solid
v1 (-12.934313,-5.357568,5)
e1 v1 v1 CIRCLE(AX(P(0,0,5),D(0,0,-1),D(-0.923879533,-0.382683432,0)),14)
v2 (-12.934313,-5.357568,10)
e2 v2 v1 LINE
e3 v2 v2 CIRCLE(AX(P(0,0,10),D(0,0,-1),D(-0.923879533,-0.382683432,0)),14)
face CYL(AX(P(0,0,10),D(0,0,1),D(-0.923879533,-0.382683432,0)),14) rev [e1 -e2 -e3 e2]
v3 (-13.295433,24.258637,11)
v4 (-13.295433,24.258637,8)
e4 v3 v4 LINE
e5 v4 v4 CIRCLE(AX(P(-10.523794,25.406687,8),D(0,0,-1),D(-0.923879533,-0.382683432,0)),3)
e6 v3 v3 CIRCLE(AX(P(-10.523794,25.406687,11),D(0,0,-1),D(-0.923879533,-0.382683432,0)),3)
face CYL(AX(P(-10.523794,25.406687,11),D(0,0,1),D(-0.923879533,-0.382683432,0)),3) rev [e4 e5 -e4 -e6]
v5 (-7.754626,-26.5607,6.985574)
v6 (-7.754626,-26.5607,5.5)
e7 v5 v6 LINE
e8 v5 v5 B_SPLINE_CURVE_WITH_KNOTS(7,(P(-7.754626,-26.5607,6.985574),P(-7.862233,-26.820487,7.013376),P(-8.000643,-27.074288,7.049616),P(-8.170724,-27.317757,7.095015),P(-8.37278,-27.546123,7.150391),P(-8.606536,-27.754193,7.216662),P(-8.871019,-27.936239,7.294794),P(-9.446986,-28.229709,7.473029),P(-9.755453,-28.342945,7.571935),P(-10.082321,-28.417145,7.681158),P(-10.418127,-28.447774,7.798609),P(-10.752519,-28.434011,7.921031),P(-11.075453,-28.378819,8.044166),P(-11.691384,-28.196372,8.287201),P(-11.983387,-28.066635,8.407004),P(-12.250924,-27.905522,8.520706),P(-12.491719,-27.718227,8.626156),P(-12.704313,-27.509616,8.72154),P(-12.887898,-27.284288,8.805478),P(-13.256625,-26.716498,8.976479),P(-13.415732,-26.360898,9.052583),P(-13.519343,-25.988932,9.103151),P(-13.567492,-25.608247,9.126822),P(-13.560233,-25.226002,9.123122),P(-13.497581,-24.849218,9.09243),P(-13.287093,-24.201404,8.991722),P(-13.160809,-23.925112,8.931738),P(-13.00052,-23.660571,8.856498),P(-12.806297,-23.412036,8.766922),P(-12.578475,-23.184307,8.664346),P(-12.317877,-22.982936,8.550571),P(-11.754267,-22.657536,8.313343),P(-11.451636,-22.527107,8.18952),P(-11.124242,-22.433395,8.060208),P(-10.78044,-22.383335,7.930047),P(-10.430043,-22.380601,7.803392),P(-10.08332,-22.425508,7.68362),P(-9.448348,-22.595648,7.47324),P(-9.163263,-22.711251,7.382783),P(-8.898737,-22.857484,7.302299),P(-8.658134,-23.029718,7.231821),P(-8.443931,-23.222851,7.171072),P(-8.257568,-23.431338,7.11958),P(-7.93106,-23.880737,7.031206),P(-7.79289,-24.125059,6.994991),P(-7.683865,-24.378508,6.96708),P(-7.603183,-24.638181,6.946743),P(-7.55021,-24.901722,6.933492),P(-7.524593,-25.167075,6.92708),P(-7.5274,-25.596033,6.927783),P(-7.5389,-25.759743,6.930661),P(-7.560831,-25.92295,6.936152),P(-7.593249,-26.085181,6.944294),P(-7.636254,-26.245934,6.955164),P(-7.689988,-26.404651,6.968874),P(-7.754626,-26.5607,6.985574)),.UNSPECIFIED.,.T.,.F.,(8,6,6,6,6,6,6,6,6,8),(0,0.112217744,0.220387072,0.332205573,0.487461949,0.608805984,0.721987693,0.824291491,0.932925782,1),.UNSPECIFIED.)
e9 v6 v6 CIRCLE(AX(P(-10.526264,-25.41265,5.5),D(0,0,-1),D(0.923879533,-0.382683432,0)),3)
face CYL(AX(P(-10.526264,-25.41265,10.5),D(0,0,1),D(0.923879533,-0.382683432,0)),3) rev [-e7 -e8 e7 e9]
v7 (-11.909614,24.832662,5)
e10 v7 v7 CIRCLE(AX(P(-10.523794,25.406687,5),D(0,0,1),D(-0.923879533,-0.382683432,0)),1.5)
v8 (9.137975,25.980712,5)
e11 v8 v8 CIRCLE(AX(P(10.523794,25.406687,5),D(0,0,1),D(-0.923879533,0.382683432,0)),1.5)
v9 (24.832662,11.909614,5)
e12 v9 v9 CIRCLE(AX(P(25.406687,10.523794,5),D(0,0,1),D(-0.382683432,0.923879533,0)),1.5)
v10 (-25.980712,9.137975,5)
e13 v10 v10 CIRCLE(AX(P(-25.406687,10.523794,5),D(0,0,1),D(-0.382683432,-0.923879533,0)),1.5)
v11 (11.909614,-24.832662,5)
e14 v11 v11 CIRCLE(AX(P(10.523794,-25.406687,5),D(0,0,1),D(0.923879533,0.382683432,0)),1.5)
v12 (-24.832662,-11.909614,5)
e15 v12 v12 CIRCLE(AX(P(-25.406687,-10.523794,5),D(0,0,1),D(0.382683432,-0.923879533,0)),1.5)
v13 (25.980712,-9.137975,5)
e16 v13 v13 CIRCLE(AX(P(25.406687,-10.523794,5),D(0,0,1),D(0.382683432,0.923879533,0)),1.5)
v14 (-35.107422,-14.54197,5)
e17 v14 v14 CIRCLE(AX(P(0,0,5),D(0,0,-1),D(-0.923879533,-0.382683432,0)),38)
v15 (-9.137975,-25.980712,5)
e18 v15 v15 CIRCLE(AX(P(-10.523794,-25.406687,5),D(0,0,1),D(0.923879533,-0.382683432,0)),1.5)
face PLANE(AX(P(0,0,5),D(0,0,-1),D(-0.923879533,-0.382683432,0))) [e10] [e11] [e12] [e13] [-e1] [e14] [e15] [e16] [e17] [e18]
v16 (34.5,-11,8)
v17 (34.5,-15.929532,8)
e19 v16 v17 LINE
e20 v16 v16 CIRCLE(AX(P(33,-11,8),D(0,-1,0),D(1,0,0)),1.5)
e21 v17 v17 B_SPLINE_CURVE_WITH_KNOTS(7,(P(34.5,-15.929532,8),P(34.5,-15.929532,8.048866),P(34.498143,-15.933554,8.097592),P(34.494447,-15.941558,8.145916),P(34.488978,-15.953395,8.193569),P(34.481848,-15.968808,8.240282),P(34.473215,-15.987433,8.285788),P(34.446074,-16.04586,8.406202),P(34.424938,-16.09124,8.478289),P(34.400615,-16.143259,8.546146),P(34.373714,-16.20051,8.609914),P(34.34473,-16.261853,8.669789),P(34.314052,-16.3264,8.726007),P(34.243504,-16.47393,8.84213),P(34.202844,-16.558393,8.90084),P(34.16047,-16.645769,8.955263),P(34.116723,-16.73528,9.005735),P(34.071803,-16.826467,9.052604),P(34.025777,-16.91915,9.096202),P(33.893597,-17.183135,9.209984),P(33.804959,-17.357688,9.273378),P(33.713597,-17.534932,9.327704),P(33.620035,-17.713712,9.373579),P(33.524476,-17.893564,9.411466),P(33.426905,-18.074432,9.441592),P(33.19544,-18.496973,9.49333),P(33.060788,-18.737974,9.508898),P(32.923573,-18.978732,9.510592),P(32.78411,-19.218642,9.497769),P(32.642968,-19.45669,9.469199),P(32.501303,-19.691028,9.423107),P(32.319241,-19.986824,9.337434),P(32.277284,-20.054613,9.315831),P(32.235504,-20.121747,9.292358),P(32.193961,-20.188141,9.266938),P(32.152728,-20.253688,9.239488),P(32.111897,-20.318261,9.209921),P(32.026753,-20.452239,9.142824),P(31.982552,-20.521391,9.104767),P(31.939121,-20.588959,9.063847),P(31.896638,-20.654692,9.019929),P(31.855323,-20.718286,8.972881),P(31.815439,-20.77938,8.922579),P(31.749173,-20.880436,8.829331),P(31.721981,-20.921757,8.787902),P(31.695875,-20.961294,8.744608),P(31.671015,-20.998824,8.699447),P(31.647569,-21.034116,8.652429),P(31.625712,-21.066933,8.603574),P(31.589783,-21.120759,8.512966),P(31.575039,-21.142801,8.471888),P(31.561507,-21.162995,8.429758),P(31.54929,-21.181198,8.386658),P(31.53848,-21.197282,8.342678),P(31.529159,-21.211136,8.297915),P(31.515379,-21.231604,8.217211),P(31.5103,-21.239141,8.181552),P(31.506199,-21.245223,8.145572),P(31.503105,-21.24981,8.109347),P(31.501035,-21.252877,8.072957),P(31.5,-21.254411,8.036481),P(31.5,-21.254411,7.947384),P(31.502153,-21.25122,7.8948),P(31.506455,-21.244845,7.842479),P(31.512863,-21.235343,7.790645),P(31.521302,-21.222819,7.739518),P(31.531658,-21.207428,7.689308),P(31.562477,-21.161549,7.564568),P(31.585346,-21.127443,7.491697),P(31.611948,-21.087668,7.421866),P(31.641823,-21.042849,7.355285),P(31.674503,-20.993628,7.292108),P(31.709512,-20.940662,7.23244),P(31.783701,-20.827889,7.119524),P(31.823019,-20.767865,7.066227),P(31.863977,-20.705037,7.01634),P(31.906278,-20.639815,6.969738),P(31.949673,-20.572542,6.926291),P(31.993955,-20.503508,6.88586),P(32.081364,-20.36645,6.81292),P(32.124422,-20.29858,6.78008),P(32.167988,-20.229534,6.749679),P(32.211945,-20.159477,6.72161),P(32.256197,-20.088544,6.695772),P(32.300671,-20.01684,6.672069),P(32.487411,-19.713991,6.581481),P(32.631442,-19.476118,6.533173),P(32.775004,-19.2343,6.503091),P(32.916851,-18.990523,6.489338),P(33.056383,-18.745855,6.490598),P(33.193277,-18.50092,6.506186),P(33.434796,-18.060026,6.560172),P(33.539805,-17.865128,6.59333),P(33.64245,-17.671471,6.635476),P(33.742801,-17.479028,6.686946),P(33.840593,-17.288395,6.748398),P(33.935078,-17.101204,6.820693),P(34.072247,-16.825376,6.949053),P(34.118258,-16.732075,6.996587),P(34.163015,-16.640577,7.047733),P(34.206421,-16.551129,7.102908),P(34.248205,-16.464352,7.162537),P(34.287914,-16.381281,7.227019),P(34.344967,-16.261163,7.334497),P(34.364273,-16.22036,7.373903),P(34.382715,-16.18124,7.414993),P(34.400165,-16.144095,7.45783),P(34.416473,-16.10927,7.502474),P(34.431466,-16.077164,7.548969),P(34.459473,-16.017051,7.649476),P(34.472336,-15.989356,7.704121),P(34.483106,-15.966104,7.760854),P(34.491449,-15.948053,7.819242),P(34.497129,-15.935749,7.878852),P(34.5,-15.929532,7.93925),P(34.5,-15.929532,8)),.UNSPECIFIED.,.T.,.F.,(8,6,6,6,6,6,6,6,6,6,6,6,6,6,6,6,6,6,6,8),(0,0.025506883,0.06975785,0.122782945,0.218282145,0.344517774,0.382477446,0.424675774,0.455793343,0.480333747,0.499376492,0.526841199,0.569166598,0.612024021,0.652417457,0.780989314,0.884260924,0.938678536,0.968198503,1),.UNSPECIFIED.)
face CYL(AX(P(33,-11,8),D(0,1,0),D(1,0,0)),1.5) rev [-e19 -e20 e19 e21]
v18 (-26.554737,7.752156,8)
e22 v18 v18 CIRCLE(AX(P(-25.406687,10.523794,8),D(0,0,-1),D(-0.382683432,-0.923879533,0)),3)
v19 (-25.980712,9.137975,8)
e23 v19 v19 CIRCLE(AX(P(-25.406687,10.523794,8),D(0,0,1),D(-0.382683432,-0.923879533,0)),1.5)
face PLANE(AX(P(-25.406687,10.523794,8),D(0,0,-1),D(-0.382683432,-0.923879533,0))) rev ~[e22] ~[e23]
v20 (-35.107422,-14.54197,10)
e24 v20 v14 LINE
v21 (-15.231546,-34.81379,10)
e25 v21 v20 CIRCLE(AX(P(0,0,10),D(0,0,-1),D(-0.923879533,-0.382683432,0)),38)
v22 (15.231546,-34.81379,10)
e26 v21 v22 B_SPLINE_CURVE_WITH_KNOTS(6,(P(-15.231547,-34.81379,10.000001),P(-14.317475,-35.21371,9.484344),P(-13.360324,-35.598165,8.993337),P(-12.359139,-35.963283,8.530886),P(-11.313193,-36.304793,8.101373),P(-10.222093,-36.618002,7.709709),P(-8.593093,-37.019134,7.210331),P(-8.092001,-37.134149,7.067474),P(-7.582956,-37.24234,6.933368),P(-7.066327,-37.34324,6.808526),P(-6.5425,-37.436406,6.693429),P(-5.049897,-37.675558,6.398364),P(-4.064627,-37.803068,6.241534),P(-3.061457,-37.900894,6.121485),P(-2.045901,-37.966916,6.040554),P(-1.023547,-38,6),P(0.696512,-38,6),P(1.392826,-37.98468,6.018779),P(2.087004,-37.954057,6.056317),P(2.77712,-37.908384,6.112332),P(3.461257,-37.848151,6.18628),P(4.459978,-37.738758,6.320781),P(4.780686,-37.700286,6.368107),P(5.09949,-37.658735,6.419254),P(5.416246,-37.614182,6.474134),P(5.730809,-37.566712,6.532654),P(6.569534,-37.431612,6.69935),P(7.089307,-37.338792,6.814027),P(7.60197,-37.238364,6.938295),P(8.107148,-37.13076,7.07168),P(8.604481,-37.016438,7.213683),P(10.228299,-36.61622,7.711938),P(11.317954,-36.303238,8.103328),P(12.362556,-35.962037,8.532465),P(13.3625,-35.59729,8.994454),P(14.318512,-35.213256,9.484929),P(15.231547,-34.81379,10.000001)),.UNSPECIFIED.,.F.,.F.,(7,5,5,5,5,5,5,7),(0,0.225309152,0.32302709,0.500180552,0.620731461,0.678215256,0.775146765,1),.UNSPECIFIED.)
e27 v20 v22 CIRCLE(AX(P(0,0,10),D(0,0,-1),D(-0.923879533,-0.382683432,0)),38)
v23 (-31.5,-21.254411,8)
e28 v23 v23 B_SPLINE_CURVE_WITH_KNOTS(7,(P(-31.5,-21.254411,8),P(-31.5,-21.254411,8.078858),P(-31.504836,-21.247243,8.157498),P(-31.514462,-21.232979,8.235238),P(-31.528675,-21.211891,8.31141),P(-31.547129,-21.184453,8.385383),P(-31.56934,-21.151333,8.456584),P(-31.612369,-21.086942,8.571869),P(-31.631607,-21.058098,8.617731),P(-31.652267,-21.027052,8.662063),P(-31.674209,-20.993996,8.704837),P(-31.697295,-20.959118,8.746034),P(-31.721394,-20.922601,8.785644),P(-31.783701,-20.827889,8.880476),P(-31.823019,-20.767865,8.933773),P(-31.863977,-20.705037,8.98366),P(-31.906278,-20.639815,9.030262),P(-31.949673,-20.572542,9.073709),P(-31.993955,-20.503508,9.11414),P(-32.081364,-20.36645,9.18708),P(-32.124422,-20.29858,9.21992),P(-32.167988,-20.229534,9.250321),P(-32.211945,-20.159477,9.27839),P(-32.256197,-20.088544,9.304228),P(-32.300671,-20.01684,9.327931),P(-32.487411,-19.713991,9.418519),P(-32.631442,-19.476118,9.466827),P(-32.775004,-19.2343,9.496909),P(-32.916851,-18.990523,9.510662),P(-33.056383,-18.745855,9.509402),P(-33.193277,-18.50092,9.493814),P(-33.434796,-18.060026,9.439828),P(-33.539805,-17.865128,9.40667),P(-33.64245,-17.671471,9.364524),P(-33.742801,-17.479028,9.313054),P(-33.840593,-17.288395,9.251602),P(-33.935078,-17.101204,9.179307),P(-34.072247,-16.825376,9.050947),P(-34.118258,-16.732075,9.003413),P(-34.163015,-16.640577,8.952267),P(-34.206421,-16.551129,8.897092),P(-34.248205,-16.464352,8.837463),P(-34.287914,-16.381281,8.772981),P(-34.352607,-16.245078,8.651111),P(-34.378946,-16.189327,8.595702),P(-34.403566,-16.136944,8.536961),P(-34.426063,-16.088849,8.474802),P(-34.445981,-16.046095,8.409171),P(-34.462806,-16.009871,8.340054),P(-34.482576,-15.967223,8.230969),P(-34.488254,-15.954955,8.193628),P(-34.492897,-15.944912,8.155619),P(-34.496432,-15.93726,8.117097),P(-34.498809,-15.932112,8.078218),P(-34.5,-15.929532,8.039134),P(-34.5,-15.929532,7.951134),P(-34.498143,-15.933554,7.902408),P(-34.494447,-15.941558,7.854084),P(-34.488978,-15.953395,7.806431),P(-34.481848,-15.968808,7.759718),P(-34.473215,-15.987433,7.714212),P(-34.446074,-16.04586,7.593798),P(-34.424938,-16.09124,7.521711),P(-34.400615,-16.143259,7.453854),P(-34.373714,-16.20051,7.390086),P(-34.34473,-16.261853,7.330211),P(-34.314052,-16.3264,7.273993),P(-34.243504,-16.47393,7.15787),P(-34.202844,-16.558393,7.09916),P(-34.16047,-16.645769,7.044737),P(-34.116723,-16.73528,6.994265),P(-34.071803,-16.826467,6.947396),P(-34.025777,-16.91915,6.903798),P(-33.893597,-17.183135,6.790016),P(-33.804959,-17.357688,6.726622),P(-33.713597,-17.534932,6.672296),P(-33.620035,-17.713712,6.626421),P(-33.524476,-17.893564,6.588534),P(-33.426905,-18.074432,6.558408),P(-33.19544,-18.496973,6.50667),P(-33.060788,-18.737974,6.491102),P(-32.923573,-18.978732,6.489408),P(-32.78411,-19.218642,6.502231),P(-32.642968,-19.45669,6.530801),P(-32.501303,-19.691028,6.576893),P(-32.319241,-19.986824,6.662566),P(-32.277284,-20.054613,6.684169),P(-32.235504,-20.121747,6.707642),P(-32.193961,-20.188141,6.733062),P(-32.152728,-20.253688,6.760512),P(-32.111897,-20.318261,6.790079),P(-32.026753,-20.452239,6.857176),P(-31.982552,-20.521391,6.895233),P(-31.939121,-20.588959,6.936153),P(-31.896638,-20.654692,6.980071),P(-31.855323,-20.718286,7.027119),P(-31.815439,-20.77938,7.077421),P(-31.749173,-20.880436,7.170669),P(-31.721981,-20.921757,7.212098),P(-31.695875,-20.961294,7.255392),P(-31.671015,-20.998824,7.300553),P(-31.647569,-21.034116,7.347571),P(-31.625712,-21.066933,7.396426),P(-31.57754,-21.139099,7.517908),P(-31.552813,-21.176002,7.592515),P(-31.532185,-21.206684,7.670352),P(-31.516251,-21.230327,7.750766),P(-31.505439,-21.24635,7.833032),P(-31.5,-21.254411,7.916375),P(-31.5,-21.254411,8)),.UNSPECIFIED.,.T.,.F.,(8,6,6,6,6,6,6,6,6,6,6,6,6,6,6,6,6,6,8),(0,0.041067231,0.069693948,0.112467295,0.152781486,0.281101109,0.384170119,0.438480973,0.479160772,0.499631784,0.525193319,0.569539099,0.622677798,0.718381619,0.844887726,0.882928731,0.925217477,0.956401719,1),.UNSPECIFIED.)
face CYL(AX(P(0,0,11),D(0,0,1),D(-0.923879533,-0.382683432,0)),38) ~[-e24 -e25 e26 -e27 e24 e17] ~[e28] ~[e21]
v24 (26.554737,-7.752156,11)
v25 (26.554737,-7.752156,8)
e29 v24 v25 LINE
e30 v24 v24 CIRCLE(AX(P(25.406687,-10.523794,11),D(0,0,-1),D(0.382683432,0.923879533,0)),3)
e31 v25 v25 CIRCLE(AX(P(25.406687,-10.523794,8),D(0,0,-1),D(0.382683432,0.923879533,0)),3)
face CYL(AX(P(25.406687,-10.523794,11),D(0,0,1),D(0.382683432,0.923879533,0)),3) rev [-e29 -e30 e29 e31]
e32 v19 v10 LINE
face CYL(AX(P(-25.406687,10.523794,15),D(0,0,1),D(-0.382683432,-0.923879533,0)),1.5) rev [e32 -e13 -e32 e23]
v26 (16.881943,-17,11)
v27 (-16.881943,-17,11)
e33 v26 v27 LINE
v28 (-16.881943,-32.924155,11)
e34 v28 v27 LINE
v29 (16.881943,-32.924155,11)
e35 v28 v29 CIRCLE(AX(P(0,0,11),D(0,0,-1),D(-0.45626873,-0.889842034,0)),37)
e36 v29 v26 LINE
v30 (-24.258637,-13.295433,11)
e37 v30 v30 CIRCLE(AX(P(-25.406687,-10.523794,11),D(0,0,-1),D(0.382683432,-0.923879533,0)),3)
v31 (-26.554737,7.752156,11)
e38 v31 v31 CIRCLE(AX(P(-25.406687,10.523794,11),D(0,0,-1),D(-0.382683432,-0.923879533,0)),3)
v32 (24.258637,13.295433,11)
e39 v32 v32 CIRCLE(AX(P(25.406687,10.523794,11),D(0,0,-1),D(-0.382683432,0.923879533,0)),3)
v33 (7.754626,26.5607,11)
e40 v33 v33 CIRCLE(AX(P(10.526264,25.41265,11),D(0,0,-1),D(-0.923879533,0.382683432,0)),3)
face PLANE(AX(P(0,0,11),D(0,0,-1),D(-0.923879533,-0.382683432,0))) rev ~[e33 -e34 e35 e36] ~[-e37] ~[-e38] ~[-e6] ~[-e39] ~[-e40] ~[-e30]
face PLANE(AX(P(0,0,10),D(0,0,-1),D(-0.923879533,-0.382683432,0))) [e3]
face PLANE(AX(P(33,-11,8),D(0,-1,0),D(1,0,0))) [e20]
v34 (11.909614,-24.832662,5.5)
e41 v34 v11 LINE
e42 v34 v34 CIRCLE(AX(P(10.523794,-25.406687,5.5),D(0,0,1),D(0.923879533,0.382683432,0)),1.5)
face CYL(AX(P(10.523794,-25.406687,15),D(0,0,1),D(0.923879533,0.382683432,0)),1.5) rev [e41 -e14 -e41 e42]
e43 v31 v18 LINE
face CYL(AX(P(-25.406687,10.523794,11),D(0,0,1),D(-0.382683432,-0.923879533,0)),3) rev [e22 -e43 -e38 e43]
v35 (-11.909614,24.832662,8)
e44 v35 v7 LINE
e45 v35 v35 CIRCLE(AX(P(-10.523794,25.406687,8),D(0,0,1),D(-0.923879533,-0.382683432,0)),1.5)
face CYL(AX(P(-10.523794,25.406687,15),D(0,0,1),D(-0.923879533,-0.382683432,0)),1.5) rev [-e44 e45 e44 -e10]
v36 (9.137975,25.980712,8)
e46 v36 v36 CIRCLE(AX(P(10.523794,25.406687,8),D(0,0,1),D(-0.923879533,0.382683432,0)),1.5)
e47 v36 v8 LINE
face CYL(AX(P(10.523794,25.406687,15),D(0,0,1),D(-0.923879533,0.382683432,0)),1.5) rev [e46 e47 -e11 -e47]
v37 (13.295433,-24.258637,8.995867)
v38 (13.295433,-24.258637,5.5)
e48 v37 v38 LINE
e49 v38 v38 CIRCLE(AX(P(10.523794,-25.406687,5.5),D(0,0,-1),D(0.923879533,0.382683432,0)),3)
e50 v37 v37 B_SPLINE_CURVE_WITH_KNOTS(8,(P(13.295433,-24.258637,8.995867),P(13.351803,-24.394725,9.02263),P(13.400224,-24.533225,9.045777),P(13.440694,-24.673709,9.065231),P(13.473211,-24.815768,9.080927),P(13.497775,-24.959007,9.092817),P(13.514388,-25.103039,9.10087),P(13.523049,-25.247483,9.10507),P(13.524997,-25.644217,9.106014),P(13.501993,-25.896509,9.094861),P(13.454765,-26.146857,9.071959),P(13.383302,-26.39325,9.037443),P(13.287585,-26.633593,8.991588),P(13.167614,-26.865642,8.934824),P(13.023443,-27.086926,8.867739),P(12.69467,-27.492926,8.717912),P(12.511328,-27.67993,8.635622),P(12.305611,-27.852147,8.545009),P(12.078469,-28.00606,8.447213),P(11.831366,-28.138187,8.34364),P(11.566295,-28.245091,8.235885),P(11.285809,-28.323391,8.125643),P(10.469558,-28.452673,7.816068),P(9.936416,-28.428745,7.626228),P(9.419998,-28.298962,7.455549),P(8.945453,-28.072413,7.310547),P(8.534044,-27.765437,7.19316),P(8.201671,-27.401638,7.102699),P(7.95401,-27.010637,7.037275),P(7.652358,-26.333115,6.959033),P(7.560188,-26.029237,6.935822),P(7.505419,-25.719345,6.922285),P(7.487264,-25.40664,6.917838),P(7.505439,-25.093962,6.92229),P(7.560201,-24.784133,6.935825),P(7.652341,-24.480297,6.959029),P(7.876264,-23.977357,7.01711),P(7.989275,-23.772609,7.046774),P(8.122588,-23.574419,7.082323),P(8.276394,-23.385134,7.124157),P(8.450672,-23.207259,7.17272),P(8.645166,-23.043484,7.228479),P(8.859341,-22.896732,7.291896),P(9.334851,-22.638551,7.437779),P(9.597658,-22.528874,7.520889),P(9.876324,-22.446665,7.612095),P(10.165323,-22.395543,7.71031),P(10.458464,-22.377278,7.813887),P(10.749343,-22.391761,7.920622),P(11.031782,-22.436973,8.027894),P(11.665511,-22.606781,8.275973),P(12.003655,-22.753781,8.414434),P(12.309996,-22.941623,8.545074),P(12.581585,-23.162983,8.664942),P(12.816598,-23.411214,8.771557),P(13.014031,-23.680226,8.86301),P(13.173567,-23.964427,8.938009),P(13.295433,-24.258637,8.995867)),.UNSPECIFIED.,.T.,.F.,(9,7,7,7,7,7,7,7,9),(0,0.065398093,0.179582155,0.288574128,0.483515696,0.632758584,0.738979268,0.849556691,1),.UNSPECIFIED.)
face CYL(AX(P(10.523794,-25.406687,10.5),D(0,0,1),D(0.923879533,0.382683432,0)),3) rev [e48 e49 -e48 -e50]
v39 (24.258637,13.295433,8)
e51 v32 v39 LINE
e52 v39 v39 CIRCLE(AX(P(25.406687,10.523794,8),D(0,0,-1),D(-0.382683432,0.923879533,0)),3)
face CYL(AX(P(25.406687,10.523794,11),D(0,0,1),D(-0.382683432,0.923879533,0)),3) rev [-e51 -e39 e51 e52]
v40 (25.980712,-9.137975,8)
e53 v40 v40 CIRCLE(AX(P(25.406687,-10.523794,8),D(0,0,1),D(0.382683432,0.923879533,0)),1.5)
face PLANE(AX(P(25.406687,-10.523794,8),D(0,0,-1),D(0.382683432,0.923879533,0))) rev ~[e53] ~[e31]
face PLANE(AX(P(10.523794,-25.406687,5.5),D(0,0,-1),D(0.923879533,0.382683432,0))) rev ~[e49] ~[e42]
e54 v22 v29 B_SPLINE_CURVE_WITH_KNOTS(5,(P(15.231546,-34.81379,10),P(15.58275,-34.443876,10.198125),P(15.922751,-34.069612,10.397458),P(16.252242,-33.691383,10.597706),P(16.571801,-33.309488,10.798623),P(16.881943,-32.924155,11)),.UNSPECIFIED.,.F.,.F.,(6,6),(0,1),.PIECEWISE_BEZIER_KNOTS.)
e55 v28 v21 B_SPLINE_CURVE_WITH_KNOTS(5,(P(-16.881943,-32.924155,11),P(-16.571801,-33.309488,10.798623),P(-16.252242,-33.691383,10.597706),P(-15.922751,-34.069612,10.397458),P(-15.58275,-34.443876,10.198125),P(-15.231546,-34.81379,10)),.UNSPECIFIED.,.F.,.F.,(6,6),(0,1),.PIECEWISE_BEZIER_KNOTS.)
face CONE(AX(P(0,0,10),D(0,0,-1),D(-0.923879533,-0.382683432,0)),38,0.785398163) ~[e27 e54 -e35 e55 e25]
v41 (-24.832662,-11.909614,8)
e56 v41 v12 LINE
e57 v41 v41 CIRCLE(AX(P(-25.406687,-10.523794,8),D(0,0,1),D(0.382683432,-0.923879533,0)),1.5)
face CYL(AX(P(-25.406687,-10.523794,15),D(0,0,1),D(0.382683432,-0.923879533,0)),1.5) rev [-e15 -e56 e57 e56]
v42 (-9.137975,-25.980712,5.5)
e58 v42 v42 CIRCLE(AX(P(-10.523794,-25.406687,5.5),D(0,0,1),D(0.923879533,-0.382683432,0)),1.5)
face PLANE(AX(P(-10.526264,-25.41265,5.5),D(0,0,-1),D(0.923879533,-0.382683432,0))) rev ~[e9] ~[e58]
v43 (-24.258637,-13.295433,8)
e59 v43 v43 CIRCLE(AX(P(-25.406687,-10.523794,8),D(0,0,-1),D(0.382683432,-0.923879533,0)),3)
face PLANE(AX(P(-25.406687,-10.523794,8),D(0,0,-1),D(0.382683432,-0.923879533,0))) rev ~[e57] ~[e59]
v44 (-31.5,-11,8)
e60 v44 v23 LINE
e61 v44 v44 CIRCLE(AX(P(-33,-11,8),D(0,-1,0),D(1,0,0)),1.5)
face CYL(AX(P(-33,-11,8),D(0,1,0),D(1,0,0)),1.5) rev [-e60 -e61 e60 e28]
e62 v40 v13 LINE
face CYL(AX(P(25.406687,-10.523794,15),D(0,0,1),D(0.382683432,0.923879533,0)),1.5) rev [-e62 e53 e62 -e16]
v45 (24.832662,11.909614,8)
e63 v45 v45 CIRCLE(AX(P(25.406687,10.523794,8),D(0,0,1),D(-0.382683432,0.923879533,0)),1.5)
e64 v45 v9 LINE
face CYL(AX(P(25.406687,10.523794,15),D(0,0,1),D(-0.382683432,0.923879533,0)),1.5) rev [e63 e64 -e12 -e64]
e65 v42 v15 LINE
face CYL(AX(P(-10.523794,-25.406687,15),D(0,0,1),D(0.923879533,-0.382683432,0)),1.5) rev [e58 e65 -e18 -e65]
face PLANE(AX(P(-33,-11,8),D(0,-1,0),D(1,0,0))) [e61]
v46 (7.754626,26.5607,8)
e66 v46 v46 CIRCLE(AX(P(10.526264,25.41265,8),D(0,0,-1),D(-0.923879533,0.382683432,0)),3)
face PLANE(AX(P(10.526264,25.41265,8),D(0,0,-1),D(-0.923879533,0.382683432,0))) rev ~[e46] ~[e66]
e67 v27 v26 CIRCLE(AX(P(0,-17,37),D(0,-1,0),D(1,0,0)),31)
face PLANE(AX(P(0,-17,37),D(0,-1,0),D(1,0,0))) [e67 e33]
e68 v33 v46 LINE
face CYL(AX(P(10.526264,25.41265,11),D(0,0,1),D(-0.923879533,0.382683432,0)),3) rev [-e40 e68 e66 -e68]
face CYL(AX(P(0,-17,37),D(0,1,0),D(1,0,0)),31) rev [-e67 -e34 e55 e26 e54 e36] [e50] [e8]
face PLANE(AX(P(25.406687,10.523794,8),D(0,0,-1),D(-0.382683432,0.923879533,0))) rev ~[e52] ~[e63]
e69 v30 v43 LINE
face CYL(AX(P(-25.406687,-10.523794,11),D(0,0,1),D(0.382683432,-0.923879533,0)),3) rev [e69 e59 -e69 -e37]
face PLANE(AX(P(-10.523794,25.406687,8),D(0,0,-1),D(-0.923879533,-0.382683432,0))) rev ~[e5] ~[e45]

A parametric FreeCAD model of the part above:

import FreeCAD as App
import Part
import Sketcher
from FreeCAD import Vector


def edges_at(feature, points):
    """Names of the edges that pass closest to the given points."""
    edges = feature.Shape.Edges
    near = lambda p: min(range(len(edges)), key=lambda i: edges[i].distToShape(Part.Vertex(*p))[0])
    return sorted({f"Edge{near(p) + 1}" for p in points})

doc = App.newDocument("Part")
body = doc.addObject("PartDesign::Body", "Body")

sketch1 = doc.addObject("Sketcher::SketchObject", "Sketch")
body.addObject(sketch1)
sketch1.AttachmentSupport = (doc.XZ_Plane, [""])
sketch1.MapMode = "FlatFace"
sketch1.AttachmentOffset = App.Placement(Vector(0, 0, 10), App.Rotation())
sketch1.addGeometry(Part.Circle(Vector(33, 8, 0), Vector(0, 0, 1), 1.5), False)
sketch1.addConstraint([
    Sketcher.Constraint("Diameter", 0, 3.0),
    Sketcher.Constraint("DistanceX", -1, 1, 0, 3, 33.0),
    Sketcher.Constraint("DistanceY", -1, 1, 0, 3, 8.0),
])
pad1 = doc.addObject("PartDesign::Pad", "Pad")
body.addObject(pad1)
pad1.Profile = sketch1
pad1.Length = 60
body2 = doc.addObject("PartDesign::Body", "Body001")
body2.AllowCompound = True

sketch2 = doc.addObject("Sketcher::SketchObject", "Sketch001")
body2.addObject(sketch2)
sketch2.AttachmentSupport = (doc.getObject("XZ_Plane001"), [""])
sketch2.MapMode = "FlatFace"
sketch2.AttachmentOffset = App.Placement(Vector(0, 0, 10), App.Rotation())
sketch2.addGeometry(Part.Circle(Vector(-33, 8, 0), Vector(0, 0, 1), 1.5), False)
sketch2.addConstraint([
    Sketcher.Constraint("Diameter", 0, 3.0),
    Sketcher.Constraint("DistanceX", 0, 3, -1, 1, 33.0),
    Sketcher.Constraint("DistanceY", -1, 1, 0, 3, 8.0),
])
pad2 = doc.addObject("PartDesign::Pad", "Pad001")
body2.addObject(pad2)
pad2.Profile = sketch2
pad2.Length = 60
doc.recompute()

boolean = doc.addObject("PartDesign::Boolean", "Boolean")
body2.addObject(boolean)
boolean.Type = "Fuse"
boolean.addObjects([body])
body3 = doc.addObject("PartDesign::Body", "Body002")
body3.AllowCompound = True
doc.recompute()

body2.Placement = App.Placement(Vector(0, -1, 0), App.Rotation(Vector(0, 0, 1), 0))
boolean2 = doc.addObject("PartDesign::Boolean", "Boolean001")
body3.addObject(boolean2)
boolean2.Type = "Fuse"
boolean2.addObjects([body2])
body4 = doc.addObject("PartDesign::Body", "Body003")

sketch3 = doc.addObject("Sketcher::SketchObject", "Sketch002")
body4.addObject(sketch3)
sketch3.AttachmentSupport = (doc.getObject("XZ_Plane003"), [""])
sketch3.MapMode = "FlatFace"
sketch3.AttachmentOffset = App.Placement(Vector(0, 0, 17), App.Rotation())
sketch3.addGeometry([
    Part.Circle(Vector(0, 37, 0), Vector(0, 0, 1), 31),
    Part.Circle(Vector(0, 37, 0), Vector(0, 0, 1), 22),
], False)
sketch3.addConstraint([
    Sketcher.Constraint("Coincident", 1, 3, 0, 3),
    Sketcher.Constraint("PointOnObject", 0, 3, -2),
    Sketcher.Constraint("Diameter", 0, 62.0),
    Sketcher.Constraint("Diameter", 1, 44.0),
    Sketcher.Constraint("DistanceY", -1, 1, 0, 3, 37.0),
])
pad3 = doc.addObject("PartDesign::Pad", "Pad002")
body4.addObject(pad3)
pad3.Profile = sketch3
pad3.Length = 24
body5 = doc.addObject("PartDesign::Body", "Body004")

sketch4 = doc.addObject("Sketcher::SketchObject", "Sketch003")
body5.addObject(sketch4)
sketch4.AttachmentSupport = (doc.getObject("XY_Plane004"), [""])
sketch4.MapMode = "FlatFace"
sketch4.AttachmentOffset = App.Placement(Vector(0, 0, 1), App.Rotation())
sketch4.addGeometry(Part.Circle(Vector(0, 0, 0), Vector(0, 0, 1), 14), False)
sketch4.addConstraint([
    Sketcher.Constraint("Coincident", 0, 3, -1, 1),
    Sketcher.Constraint("Diameter", 0, 28.0),
])
pad4 = doc.addObject("PartDesign::Pad", "Pad003")
body5.addObject(pad4)
pad4.Profile = sketch4
pad4.Length = 5
body6 = doc.addObject("PartDesign::Body", "Body005")

sketch5 = doc.addObject("Sketcher::SketchObject", "Sketch004")
body6.addObject(sketch5)
sketch5.AttachmentSupport = (doc.getObject("XY_Plane005"), [""])
sketch5.MapMode = "FlatFace"
sketch5.addGeometry(Part.Circle(Vector(0, 0, 0), Vector(0, 0, 1), 1.5), False)
sketch5.addConstraint([
    Sketcher.Constraint("Coincident", 0, 3, -1, 1),
    Sketcher.Constraint("Diameter", 0, 3.0),
])
pad5 = doc.addObject("PartDesign::Pad", "Pad004")
body6.addObject(pad5)
pad5.Profile = sketch5
pad5.Length = 20
body7 = doc.addObject("PartDesign::Body", "Body006")
doc.recompute()

body6.Placement = App.Placement(Vector(-19.445436, 19.445436, 19), App.Rotation(Vector(0, 0, 1), 45))
boolean3 = doc.addObject("PartDesign::Boolean", "Boolean002")
body7.addObject(boolean3)
boolean3.Type = "Fuse"
boolean3.addObjects([body6])
body8 = doc.addObject("PartDesign::Body", "Body007")

sketch6 = doc.addObject("Sketcher::SketchObject", "Sketch005")
body8.addObject(sketch6)
sketch6.AttachmentSupport = (doc.getObject("XY_Plane007"), [""])
sketch6.MapMode = "FlatFace"
sketch6.AttachmentOffset = App.Placement(Vector(0, 0, 19), App.Rotation())
sketch6.addGeometry(Part.Circle(Vector(-27.5, 0, 0), Vector(0, 0, 1), 1.5), False)
sketch6.addConstraint([
    Sketcher.Constraint("PointOnObject", 0, 3, -1),
    Sketcher.Constraint("Diameter", 0, 3.0),
    Sketcher.Constraint("DistanceX", 0, 3, -1, 1, 27.5),
])
pad6 = doc.addObject("PartDesign::Pad", "Pad005")
body8.addObject(pad6)
pad6.Profile = sketch6
pad6.Length = 20
body9 = doc.addObject("PartDesign::Body", "Body008")

sketch7 = doc.addObject("Sketcher::SketchObject", "Sketch006")
body9.addObject(sketch7)
sketch7.AttachmentSupport = (doc.getObject("XY_Plane008"), [""])
sketch7.MapMode = "FlatFace"
sketch7.addGeometry(Part.Circle(Vector(0, 0, 0), Vector(0, 0, 1), 1.5), False)
sketch7.addConstraint([
    Sketcher.Constraint("Coincident", 0, 3, -1, 1),
    Sketcher.Constraint("Diameter", 0, 3.0),
])
pad7 = doc.addObject("PartDesign::Pad", "Pad006")
body9.addObject(pad7)
pad7.Profile = sketch7
pad7.Length = 20
body10 = doc.addObject("PartDesign::Body", "Body009")
doc.recompute()

body9.Placement = App.Placement(Vector(-19.445436, -19.445436, 19), App.Rotation(Vector(0, 0, 1), 135))
boolean4 = doc.addObject("PartDesign::Boolean", "Boolean003")
body10.addObject(boolean4)
boolean4.Type = "Fuse"
boolean4.addObjects([body9])
body11 = doc.addObject("PartDesign::Body", "Body010")

sketch8 = doc.addObject("Sketcher::SketchObject", "Sketch007")
body11.addObject(sketch8)
sketch8.AttachmentSupport = (doc.getObject("XY_Plane010"), [""])
sketch8.MapMode = "FlatFace"
sketch8.AttachmentOffset = App.Placement(Vector(0, 0, 19), App.Rotation())
sketch8.addGeometry(Part.Circle(Vector(0, -27.5, 0), Vector(0, 0, 1), 1.5), False)
sketch8.addConstraint([
    Sketcher.Constraint("PointOnObject", 0, 3, -2),
    Sketcher.Constraint("Diameter", 0, 3.0),
    Sketcher.Constraint("DistanceY", 0, 3, -1, 1, 27.5),
])
pad8 = doc.addObject("PartDesign::Pad", "Pad007")
body11.addObject(pad8)
pad8.Profile = sketch8
pad8.Length = 20
body12 = doc.addObject("PartDesign::Body", "Body011")

sketch9 = doc.addObject("Sketcher::SketchObject", "Sketch008")
body12.addObject(sketch9)
sketch9.AttachmentSupport = (doc.getObject("XY_Plane011"), [""])
sketch9.MapMode = "FlatFace"
sketch9.addGeometry(Part.Circle(Vector(0, 0, 0), Vector(0, 0, 1), 1.5), False)
sketch9.addConstraint([
    Sketcher.Constraint("Coincident", 0, 3, -1, 1),
    Sketcher.Constraint("Diameter", 0, 3.0),
])
pad9 = doc.addObject("PartDesign::Pad", "Pad008")
body12.addObject(pad9)
pad9.Profile = sketch9
pad9.Length = 20
body13 = doc.addObject("PartDesign::Body", "Body012")
doc.recompute()

body12.Placement = App.Placement(Vector(19.445436, -19.445436, 19), App.Rotation(Vector(0, 0, 1), 225))
boolean5 = doc.addObject("PartDesign::Boolean", "Boolean004")
body13.addObject(boolean5)
boolean5.Type = "Fuse"
boolean5.addObjects([body12])
body14 = doc.addObject("PartDesign::Body", "Body013")

sketch10 = doc.addObject("Sketcher::SketchObject", "Sketch009")
body14.addObject(sketch10)
sketch10.AttachmentSupport = (doc.getObject("XY_Plane013"), [""])
sketch10.MapMode = "FlatFace"
sketch10.AttachmentOffset = App.Placement(Vector(0, 0, 19), App.Rotation())
sketch10.addGeometry(Part.Circle(Vector(27.5, 0, 0), Vector(0, 0, 1), 1.5), False)
sketch10.addConstraint([
    Sketcher.Constraint("PointOnObject", 0, 3, -1),
    Sketcher.Constraint("Diameter", 0, 3.0),
    Sketcher.Constraint("DistanceX", -1, 1, 0, 3, 27.5),
])
pad10 = doc.addObject("PartDesign::Pad", "Pad009")
body14.addObject(pad10)
pad10.Profile = sketch10
pad10.Length = 20
body15 = doc.addObject("PartDesign::Body", "Body014")

sketch11 = doc.addObject("Sketcher::SketchObject", "Sketch010")
body15.addObject(sketch11)
sketch11.AttachmentSupport = (doc.getObject("XY_Plane014"), [""])
sketch11.MapMode = "FlatFace"
sketch11.addGeometry(Part.Circle(Vector(0, 0, 0), Vector(0, 0, 1), 1.5), False)
sketch11.addConstraint([
    Sketcher.Constraint("Coincident", 0, 3, -1, 1),
    Sketcher.Constraint("Diameter", 0, 3.0),
])
pad11 = doc.addObject("PartDesign::Pad", "Pad010")
body15.addObject(pad11)
pad11.Profile = sketch11
pad11.Length = 20
body16 = doc.addObject("PartDesign::Body", "Body015")
doc.recompute()

body15.Placement = App.Placement(Vector(19.445436, 19.445436, 19), App.Rotation(Vector(0, 0, -1), 45))
boolean6 = doc.addObject("PartDesign::Boolean", "Boolean005")
body16.addObject(boolean6)
boolean6.Type = "Fuse"
boolean6.addObjects([body15])
body17 = doc.addObject("PartDesign::Body", "Body016")
body17.AllowCompound = True

sketch12 = doc.addObject("Sketcher::SketchObject", "Sketch011")
body17.addObject(sketch12)
sketch12.AttachmentSupport = (doc.getObject("XY_Plane016"), [""])
sketch12.MapMode = "FlatFace"
sketch12.AttachmentOffset = App.Placement(Vector(0, 0, 19), App.Rotation())
sketch12.addGeometry(Part.Circle(Vector(0, 27.5, 0), Vector(0, 0, 1), 1.5), False)
sketch12.addConstraint([
    Sketcher.Constraint("PointOnObject", 0, 3, -2),
    Sketcher.Constraint("Diameter", 0, 3.0),
    Sketcher.Constraint("DistanceY", -1, 1, 0, 3, 27.5),
])
pad12 = doc.addObject("PartDesign::Pad", "Pad011")
body17.addObject(pad12)
pad12.Profile = sketch12
pad12.Length = 20
doc.recompute()

boolean7 = doc.addObject("PartDesign::Boolean", "Boolean006")
body17.addObject(boolean7)
boolean7.Type = "Fuse"
boolean7.addObjects([body7])
doc.recompute()

boolean8 = doc.addObject("PartDesign::Boolean", "Boolean007")
body17.addObject(boolean8)
boolean8.Type = "Fuse"
boolean8.addObjects([body8])
doc.recompute()

boolean9 = doc.addObject("PartDesign::Boolean", "Boolean008")
body17.addObject(boolean9)
boolean9.Type = "Fuse"
boolean9.addObjects([body10])
doc.recompute()

boolean10 = doc.addObject("PartDesign::Boolean", "Boolean009")
body17.addObject(boolean10)
boolean10.Type = "Fuse"
boolean10.addObjects([body11])
doc.recompute()

boolean11 = doc.addObject("PartDesign::Boolean", "Boolean010")
body17.addObject(boolean11)
boolean11.Type = "Fuse"
boolean11.addObjects([body13])
doc.recompute()

boolean12 = doc.addObject("PartDesign::Boolean", "Boolean011")
body17.addObject(boolean12)
boolean12.Type = "Fuse"
boolean12.addObjects([body14])
doc.recompute()

boolean13 = doc.addObject("PartDesign::Boolean", "Boolean012")
body17.addObject(boolean13)
boolean13.Type = "Fuse"
boolean13.addObjects([body16])
body18 = doc.addObject("PartDesign::Body", "Body017")
body18.AllowCompound = True
doc.recompute()

body17.Placement = App.Placement(Vector(0, 0, -23), App.Rotation(Vector(0, 0, 1), 0))
boolean14 = doc.addObject("PartDesign::Boolean", "Boolean013")
body18.addObject(boolean14)
boolean14.Type = "Fuse"
boolean14.addObjects([body17])
body19 = doc.addObject("PartDesign::Body", "Body018")

sketch13 = doc.addObject("Sketcher::SketchObject", "Sketch012")
body19.addObject(sketch13)
sketch13.AttachmentSupport = (doc.getObject("XY_Plane018"), [""])
sketch13.MapMode = "FlatFace"
sketch13.addGeometry(Part.Circle(Vector(0, 0, 0), Vector(0, 0, 1), 3), False)
sketch13.addConstraint([
    Sketcher.Constraint("Coincident", 0, 3, -1, 1),
    Sketcher.Constraint("Diameter", 0, 6.0),
])
pad13 = doc.addObject("PartDesign::Pad", "Pad012")
body19.addObject(pad13)
pad13.Profile = sketch13
pad13.Length = 3
body20 = doc.addObject("PartDesign::Body", "Body019")
doc.recompute()

body19.Placement = App.Placement(Vector(-19.45, 19.45, 19), App.Rotation(Vector(0, 0, 1), 45))
boolean15 = doc.addObject("PartDesign::Boolean", "Boolean014")
body20.addObject(boolean15)
boolean15.Type = "Fuse"
boolean15.addObjects([body19])
body21 = doc.addObject("PartDesign::Body", "Body020")

sketch14 = doc.addObject("Sketcher::SketchObject", "Sketch013")
body21.addObject(sketch14)
sketch14.AttachmentSupport = (doc.getObject("XY_Plane020"), [""])
sketch14.MapMode = "FlatFace"
sketch14.AttachmentOffset = App.Placement(Vector(0, 0, 19), App.Rotation())
sketch14.addGeometry(Part.Circle(Vector(-27.5, 0, 0), Vector(0, 0, 1), 3), False)
sketch14.addConstraint([
    Sketcher.Constraint("PointOnObject", 0, 3, -1),
    Sketcher.Constraint("Diameter", 0, 6.0),
    Sketcher.Constraint("DistanceX", 0, 3, -1, 1, 27.5),
])
pad14 = doc.addObject("PartDesign::Pad", "Pad013")
body21.addObject(pad14)
pad14.Profile = sketch14
pad14.Length = 3
body22 = doc.addObject("PartDesign::Body", "Body021")

sketch15 = doc.addObject("Sketcher::SketchObject", "Sketch014")
body22.addObject(sketch15)
sketch15.AttachmentSupport = (doc.getObject("XY_Plane021"), [""])
sketch15.MapMode = "FlatFace"
sketch15.addGeometry(Part.Circle(Vector(0, 0, 0), Vector(0, 0, 1), 3), False)
sketch15.addConstraint([
    Sketcher.Constraint("Coincident", 0, 3, -1, 1),
    Sketcher.Constraint("Diameter", 0, 6.0),
])
pad15 = doc.addObject("PartDesign::Pad", "Pad014")
body22.addObject(pad15)
pad15.Profile = sketch15
pad15.Length = 3
body23 = doc.addObject("PartDesign::Body", "Body022")
doc.recompute()

body22.Placement = App.Placement(Vector(-19.445436, -19.445436, 19), App.Rotation(Vector(0, 0, 1), 135))
boolean16 = doc.addObject("PartDesign::Boolean", "Boolean015")
body23.addObject(boolean16)
boolean16.Type = "Fuse"
boolean16.addObjects([body22])
body24 = doc.addObject("PartDesign::Body", "Body023")

sketch16 = doc.addObject("Sketcher::SketchObject", "Sketch015")
body24.addObject(sketch16)
sketch16.AttachmentSupport = (doc.getObject("XY_Plane023"), [""])
sketch16.MapMode = "FlatFace"
sketch16.AttachmentOffset = App.Placement(Vector(0, 0, 19.5), App.Rotation())
sketch16.addGeometry(Part.Circle(Vector(0, -27.5, 0), Vector(0, 0, 1), 3), False)
sketch16.addConstraint([
    Sketcher.Constraint("PointOnObject", 0, 3, -2),
    Sketcher.Constraint("Diameter", 0, 6.0),
    Sketcher.Constraint("DistanceY", 0, 3, -1, 1, 27.5),
])
pad16 = doc.addObject("PartDesign::Pad", "Pad015")
body24.addObject(pad16)
pad16.Profile = sketch16
pad16.Length = 5
body25 = doc.addObject("PartDesign::Body", "Body024")

sketch17 = doc.addObject("Sketcher::SketchObject", "Sketch016")
body25.addObject(sketch17)
sketch17.AttachmentSupport = (doc.getObject("XY_Plane024"), [""])
sketch17.MapMode = "FlatFace"
sketch17.addGeometry(Part.Circle(Vector(0, 0, 0), Vector(0, 0, 1), 3), False)
sketch17.addConstraint([
    Sketcher.Constraint("Coincident", 0, 3, -1, 1),
    Sketcher.Constraint("Diameter", 0, 6.0),
])
pad17 = doc.addObject("PartDesign::Pad", "Pad016")
body25.addObject(pad17)
pad17.Profile = sketch17
pad17.Length = 5
body26 = doc.addObject("PartDesign::Body", "Body025")
doc.recompute()

body25.Placement = App.Placement(Vector(19.45, -19.45, 19.5), App.Rotation(Vector(0, 0, 1), 225))
boolean17 = doc.addObject("PartDesign::Boolean", "Boolean016")
body26.addObject(boolean17)
boolean17.Type = "Fuse"
boolean17.addObjects([body25])
body27 = doc.addObject("PartDesign::Body", "Body026")

sketch18 = doc.addObject("Sketcher::SketchObject", "Sketch017")
body27.addObject(sketch18)
sketch18.AttachmentSupport = (doc.getObject("XY_Plane026"), [""])
sketch18.MapMode = "FlatFace"
sketch18.AttachmentOffset = App.Placement(Vector(0, 0, 19), App.Rotation())
sketch18.addGeometry(Part.Circle(Vector(27.5, 0, 0), Vector(0, 0, 1), 3), False)
sketch18.addConstraint([
    Sketcher.Constraint("PointOnObject", 0, 3, -1),
    Sketcher.Constraint("Diameter", 0, 6.0),
    Sketcher.Constraint("DistanceX", -1, 1, 0, 3, 27.5),
])
pad18 = doc.addObject("PartDesign::Pad", "Pad017")
body27.addObject(pad18)
pad18.Profile = sketch18
pad18.Length = 3
body28 = doc.addObject("PartDesign::Body", "Body027")

sketch19 = doc.addObject("Sketcher::SketchObject", "Sketch018")
body28.addObject(sketch19)
sketch19.AttachmentSupport = (doc.getObject("XY_Plane027"), [""])
sketch19.MapMode = "FlatFace"
sketch19.addGeometry(Part.Circle(Vector(0, 0, 0), Vector(0, 0, 1), 3), False)
sketch19.addConstraint([
    Sketcher.Constraint("Coincident", 0, 3, -1, 1),
    Sketcher.Constraint("Diameter", 0, 6.0),
])
pad19 = doc.addObject("PartDesign::Pad", "Pad018")
body28.addObject(pad19)
pad19.Profile = sketch19
pad19.Length = 3
body29 = doc.addObject("PartDesign::Body", "Body028")
doc.recompute()

body28.Placement = App.Placement(Vector(19.445436, 19.445436, 19), App.Rotation(Vector(0, 0, -1), 45))
boolean18 = doc.addObject("PartDesign::Boolean", "Boolean017")
body29.addObject(boolean18)
boolean18.Type = "Fuse"
boolean18.addObjects([body28])
body30 = doc.addObject("PartDesign::Body", "Body029")
body30.AllowCompound = True

sketch20 = doc.addObject("Sketcher::SketchObject", "Sketch019")
body30.addObject(sketch20)
sketch20.AttachmentSupport = (doc.getObject("XY_Plane029"), [""])
sketch20.MapMode = "FlatFace"
sketch20.AttachmentOffset = App.Placement(Vector(0, 0, 19), App.Rotation())
sketch20.addGeometry(Part.Circle(Vector(0, 27.5, 0), Vector(0, 0, 1), 3), False)
sketch20.addConstraint([
    Sketcher.Constraint("PointOnObject", 0, 3, -2),
    Sketcher.Constraint("Diameter", 0, 6.0),
    Sketcher.Constraint("DistanceY", -1, 1, 0, 3, 27.5),
])
pad20 = doc.addObject("PartDesign::Pad", "Pad019")
body30.addObject(pad20)
pad20.Profile = sketch20
pad20.Length = 3
doc.recompute()

boolean19 = doc.addObject("PartDesign::Boolean", "Boolean018")
body30.addObject(boolean19)
boolean19.Type = "Fuse"
boolean19.addObjects([body20])
doc.recompute()

boolean20 = doc.addObject("PartDesign::Boolean", "Boolean019")
body30.addObject(boolean20)
boolean20.Type = "Fuse"
boolean20.addObjects([body21])
doc.recompute()

boolean21 = doc.addObject("PartDesign::Boolean", "Boolean020")
body30.addObject(boolean21)
boolean21.Type = "Fuse"
boolean21.addObjects([body23])
doc.recompute()

boolean22 = doc.addObject("PartDesign::Boolean", "Boolean021")
body30.addObject(boolean22)
boolean22.Type = "Fuse"
boolean22.addObjects([body24])
doc.recompute()

boolean23 = doc.addObject("PartDesign::Boolean", "Boolean022")
body30.addObject(boolean23)
boolean23.Type = "Fuse"
boolean23.addObjects([body26])
doc.recompute()

boolean24 = doc.addObject("PartDesign::Boolean", "Boolean023")
body30.addObject(boolean24)
boolean24.Type = "Fuse"
boolean24.addObjects([body27])
doc.recompute()

boolean25 = doc.addObject("PartDesign::Boolean", "Boolean024")
body30.addObject(boolean25)
boolean25.Type = "Fuse"
boolean25.addObjects([body29])
body31 = doc.addObject("PartDesign::Body", "Body030")
body31.AllowCompound = True
doc.recompute()

body30.Placement = App.Placement(Vector(0, 0, -19), App.Rotation(Vector(0, 0, 1), 0))
boolean26 = doc.addObject("PartDesign::Boolean", "Boolean025")
body31.addObject(boolean26)
boolean26.Type = "Fuse"
boolean26.addObjects([body30])
body32 = doc.addObject("PartDesign::Body", "Body031")

sketch21 = doc.addObject("Sketcher::SketchObject", "Sketch020")
body32.addObject(sketch21)
sketch21.AttachmentSupport = (doc.getObject("XY_Plane031"), [""])
sketch21.MapMode = "FlatFace"
sketch21.addGeometry(Part.Circle(Vector(0, 0, 0), Vector(0, 0, 1), 38), False)
sketch21.addConstraint([
    Sketcher.Constraint("Coincident", 0, 3, -1, 1),
    Sketcher.Constraint("Diameter", 0, 76.0),
])
pad21 = doc.addObject("PartDesign::Pad", "Pad020")
body32.addObject(pad21)
pad21.Profile = sketch21
pad21.Length = 6
doc.recompute()

boolean27 = doc.addObject("PartDesign::Boolean", "Boolean026")
body32.addObject(boolean27)
boolean27.Type = "Cut"
boolean27.addObjects([body31])
doc.recompute()

boolean28 = doc.addObject("PartDesign::Boolean", "Boolean027")
body32.addObject(boolean28)
boolean28.Type = "Cut"
boolean28.addObjects([body18])
doc.recompute()

boolean29 = doc.addObject("PartDesign::Boolean", "Boolean028")
body32.addObject(boolean29)
boolean29.Type = "Cut"
boolean29.addObjects([body5])
doc.recompute()

chamfer = doc.addObject("PartDesign::Chamfer", "Chamfer")
body32.addObject(chamfer)
chamfer.Base = (boolean29, edges_at(boolean29, [(-38, 0, 0)]))
chamfer.Size = 1
body33 = doc.addObject("PartDesign::Body", "Body032")
doc.recompute()

body32.Placement = App.Placement(Vector(0, 0, 0), App.Rotation(Vector(1, 0, 0), 180))
boolean30 = doc.addObject("PartDesign::Boolean", "Boolean029")
body33.addObject(boolean30)
boolean30.Type = "Fuse"
boolean30.addObjects([body32])
body34 = doc.addObject("PartDesign::Body", "Body033")
doc.recompute()

body33.Placement = App.Placement(Vector(0, 0, 11), App.Rotation(Vector(0, 0, 1), 202.5))
boolean31 = doc.addObject("PartDesign::Boolean", "Boolean030")
body34.addObject(boolean31)
boolean31.Type = "Fuse"
boolean31.addObjects([body33])
doc.recompute()

boolean32 = doc.addObject("PartDesign::Boolean", "Boolean031")
body34.addObject(boolean32)
boolean32.Type = "Cut"
boolean32.addObjects([body4])
doc.recompute()

boolean33 = doc.addObject("PartDesign::Boolean", "Boolean032")
body34.addObject(boolean33)
boolean33.Type = "Cut"
boolean33.addObjects([body3])

doc.recompute()
